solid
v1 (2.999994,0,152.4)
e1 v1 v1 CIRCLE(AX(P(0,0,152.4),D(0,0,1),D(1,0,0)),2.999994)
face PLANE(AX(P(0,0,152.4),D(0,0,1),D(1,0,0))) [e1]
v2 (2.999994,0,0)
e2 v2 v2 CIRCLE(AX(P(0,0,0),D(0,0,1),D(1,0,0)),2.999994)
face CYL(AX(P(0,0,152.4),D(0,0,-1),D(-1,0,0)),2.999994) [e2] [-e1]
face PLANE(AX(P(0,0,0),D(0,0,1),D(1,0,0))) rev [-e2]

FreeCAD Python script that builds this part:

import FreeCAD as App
import Part
import Sketcher

V = App.Vector
Q = App.Units.Quantity

doc = App.newDocument("Part")
body = doc.addObject("PartDesign::Body", "Body")

# Sketch on XY plane
sketch1 = body.newObject("Sketcher::SketchObject", "Sketch")
sketch1.AttachmentSupport = (doc.getObject("XY_Plane"), [""])
sketch1.MapMode = "FlatFace"
sketch1.addGeometry(Part.Circle(V(0, 0, 0), V(0, 0, 1), 2.999994), False)
sketch1.addConstraint([
    Sketcher.Constraint("Coincident", 0, 3, -1, 1),
    Sketcher.Constraint("Diameter", 0, 5.999988),
])
pad1 = body.newObject("PartDesign::Pad", "Pad")
pad1.Profile = sketch1
pad1.Length = Q("6 in")

doc.recompute()
